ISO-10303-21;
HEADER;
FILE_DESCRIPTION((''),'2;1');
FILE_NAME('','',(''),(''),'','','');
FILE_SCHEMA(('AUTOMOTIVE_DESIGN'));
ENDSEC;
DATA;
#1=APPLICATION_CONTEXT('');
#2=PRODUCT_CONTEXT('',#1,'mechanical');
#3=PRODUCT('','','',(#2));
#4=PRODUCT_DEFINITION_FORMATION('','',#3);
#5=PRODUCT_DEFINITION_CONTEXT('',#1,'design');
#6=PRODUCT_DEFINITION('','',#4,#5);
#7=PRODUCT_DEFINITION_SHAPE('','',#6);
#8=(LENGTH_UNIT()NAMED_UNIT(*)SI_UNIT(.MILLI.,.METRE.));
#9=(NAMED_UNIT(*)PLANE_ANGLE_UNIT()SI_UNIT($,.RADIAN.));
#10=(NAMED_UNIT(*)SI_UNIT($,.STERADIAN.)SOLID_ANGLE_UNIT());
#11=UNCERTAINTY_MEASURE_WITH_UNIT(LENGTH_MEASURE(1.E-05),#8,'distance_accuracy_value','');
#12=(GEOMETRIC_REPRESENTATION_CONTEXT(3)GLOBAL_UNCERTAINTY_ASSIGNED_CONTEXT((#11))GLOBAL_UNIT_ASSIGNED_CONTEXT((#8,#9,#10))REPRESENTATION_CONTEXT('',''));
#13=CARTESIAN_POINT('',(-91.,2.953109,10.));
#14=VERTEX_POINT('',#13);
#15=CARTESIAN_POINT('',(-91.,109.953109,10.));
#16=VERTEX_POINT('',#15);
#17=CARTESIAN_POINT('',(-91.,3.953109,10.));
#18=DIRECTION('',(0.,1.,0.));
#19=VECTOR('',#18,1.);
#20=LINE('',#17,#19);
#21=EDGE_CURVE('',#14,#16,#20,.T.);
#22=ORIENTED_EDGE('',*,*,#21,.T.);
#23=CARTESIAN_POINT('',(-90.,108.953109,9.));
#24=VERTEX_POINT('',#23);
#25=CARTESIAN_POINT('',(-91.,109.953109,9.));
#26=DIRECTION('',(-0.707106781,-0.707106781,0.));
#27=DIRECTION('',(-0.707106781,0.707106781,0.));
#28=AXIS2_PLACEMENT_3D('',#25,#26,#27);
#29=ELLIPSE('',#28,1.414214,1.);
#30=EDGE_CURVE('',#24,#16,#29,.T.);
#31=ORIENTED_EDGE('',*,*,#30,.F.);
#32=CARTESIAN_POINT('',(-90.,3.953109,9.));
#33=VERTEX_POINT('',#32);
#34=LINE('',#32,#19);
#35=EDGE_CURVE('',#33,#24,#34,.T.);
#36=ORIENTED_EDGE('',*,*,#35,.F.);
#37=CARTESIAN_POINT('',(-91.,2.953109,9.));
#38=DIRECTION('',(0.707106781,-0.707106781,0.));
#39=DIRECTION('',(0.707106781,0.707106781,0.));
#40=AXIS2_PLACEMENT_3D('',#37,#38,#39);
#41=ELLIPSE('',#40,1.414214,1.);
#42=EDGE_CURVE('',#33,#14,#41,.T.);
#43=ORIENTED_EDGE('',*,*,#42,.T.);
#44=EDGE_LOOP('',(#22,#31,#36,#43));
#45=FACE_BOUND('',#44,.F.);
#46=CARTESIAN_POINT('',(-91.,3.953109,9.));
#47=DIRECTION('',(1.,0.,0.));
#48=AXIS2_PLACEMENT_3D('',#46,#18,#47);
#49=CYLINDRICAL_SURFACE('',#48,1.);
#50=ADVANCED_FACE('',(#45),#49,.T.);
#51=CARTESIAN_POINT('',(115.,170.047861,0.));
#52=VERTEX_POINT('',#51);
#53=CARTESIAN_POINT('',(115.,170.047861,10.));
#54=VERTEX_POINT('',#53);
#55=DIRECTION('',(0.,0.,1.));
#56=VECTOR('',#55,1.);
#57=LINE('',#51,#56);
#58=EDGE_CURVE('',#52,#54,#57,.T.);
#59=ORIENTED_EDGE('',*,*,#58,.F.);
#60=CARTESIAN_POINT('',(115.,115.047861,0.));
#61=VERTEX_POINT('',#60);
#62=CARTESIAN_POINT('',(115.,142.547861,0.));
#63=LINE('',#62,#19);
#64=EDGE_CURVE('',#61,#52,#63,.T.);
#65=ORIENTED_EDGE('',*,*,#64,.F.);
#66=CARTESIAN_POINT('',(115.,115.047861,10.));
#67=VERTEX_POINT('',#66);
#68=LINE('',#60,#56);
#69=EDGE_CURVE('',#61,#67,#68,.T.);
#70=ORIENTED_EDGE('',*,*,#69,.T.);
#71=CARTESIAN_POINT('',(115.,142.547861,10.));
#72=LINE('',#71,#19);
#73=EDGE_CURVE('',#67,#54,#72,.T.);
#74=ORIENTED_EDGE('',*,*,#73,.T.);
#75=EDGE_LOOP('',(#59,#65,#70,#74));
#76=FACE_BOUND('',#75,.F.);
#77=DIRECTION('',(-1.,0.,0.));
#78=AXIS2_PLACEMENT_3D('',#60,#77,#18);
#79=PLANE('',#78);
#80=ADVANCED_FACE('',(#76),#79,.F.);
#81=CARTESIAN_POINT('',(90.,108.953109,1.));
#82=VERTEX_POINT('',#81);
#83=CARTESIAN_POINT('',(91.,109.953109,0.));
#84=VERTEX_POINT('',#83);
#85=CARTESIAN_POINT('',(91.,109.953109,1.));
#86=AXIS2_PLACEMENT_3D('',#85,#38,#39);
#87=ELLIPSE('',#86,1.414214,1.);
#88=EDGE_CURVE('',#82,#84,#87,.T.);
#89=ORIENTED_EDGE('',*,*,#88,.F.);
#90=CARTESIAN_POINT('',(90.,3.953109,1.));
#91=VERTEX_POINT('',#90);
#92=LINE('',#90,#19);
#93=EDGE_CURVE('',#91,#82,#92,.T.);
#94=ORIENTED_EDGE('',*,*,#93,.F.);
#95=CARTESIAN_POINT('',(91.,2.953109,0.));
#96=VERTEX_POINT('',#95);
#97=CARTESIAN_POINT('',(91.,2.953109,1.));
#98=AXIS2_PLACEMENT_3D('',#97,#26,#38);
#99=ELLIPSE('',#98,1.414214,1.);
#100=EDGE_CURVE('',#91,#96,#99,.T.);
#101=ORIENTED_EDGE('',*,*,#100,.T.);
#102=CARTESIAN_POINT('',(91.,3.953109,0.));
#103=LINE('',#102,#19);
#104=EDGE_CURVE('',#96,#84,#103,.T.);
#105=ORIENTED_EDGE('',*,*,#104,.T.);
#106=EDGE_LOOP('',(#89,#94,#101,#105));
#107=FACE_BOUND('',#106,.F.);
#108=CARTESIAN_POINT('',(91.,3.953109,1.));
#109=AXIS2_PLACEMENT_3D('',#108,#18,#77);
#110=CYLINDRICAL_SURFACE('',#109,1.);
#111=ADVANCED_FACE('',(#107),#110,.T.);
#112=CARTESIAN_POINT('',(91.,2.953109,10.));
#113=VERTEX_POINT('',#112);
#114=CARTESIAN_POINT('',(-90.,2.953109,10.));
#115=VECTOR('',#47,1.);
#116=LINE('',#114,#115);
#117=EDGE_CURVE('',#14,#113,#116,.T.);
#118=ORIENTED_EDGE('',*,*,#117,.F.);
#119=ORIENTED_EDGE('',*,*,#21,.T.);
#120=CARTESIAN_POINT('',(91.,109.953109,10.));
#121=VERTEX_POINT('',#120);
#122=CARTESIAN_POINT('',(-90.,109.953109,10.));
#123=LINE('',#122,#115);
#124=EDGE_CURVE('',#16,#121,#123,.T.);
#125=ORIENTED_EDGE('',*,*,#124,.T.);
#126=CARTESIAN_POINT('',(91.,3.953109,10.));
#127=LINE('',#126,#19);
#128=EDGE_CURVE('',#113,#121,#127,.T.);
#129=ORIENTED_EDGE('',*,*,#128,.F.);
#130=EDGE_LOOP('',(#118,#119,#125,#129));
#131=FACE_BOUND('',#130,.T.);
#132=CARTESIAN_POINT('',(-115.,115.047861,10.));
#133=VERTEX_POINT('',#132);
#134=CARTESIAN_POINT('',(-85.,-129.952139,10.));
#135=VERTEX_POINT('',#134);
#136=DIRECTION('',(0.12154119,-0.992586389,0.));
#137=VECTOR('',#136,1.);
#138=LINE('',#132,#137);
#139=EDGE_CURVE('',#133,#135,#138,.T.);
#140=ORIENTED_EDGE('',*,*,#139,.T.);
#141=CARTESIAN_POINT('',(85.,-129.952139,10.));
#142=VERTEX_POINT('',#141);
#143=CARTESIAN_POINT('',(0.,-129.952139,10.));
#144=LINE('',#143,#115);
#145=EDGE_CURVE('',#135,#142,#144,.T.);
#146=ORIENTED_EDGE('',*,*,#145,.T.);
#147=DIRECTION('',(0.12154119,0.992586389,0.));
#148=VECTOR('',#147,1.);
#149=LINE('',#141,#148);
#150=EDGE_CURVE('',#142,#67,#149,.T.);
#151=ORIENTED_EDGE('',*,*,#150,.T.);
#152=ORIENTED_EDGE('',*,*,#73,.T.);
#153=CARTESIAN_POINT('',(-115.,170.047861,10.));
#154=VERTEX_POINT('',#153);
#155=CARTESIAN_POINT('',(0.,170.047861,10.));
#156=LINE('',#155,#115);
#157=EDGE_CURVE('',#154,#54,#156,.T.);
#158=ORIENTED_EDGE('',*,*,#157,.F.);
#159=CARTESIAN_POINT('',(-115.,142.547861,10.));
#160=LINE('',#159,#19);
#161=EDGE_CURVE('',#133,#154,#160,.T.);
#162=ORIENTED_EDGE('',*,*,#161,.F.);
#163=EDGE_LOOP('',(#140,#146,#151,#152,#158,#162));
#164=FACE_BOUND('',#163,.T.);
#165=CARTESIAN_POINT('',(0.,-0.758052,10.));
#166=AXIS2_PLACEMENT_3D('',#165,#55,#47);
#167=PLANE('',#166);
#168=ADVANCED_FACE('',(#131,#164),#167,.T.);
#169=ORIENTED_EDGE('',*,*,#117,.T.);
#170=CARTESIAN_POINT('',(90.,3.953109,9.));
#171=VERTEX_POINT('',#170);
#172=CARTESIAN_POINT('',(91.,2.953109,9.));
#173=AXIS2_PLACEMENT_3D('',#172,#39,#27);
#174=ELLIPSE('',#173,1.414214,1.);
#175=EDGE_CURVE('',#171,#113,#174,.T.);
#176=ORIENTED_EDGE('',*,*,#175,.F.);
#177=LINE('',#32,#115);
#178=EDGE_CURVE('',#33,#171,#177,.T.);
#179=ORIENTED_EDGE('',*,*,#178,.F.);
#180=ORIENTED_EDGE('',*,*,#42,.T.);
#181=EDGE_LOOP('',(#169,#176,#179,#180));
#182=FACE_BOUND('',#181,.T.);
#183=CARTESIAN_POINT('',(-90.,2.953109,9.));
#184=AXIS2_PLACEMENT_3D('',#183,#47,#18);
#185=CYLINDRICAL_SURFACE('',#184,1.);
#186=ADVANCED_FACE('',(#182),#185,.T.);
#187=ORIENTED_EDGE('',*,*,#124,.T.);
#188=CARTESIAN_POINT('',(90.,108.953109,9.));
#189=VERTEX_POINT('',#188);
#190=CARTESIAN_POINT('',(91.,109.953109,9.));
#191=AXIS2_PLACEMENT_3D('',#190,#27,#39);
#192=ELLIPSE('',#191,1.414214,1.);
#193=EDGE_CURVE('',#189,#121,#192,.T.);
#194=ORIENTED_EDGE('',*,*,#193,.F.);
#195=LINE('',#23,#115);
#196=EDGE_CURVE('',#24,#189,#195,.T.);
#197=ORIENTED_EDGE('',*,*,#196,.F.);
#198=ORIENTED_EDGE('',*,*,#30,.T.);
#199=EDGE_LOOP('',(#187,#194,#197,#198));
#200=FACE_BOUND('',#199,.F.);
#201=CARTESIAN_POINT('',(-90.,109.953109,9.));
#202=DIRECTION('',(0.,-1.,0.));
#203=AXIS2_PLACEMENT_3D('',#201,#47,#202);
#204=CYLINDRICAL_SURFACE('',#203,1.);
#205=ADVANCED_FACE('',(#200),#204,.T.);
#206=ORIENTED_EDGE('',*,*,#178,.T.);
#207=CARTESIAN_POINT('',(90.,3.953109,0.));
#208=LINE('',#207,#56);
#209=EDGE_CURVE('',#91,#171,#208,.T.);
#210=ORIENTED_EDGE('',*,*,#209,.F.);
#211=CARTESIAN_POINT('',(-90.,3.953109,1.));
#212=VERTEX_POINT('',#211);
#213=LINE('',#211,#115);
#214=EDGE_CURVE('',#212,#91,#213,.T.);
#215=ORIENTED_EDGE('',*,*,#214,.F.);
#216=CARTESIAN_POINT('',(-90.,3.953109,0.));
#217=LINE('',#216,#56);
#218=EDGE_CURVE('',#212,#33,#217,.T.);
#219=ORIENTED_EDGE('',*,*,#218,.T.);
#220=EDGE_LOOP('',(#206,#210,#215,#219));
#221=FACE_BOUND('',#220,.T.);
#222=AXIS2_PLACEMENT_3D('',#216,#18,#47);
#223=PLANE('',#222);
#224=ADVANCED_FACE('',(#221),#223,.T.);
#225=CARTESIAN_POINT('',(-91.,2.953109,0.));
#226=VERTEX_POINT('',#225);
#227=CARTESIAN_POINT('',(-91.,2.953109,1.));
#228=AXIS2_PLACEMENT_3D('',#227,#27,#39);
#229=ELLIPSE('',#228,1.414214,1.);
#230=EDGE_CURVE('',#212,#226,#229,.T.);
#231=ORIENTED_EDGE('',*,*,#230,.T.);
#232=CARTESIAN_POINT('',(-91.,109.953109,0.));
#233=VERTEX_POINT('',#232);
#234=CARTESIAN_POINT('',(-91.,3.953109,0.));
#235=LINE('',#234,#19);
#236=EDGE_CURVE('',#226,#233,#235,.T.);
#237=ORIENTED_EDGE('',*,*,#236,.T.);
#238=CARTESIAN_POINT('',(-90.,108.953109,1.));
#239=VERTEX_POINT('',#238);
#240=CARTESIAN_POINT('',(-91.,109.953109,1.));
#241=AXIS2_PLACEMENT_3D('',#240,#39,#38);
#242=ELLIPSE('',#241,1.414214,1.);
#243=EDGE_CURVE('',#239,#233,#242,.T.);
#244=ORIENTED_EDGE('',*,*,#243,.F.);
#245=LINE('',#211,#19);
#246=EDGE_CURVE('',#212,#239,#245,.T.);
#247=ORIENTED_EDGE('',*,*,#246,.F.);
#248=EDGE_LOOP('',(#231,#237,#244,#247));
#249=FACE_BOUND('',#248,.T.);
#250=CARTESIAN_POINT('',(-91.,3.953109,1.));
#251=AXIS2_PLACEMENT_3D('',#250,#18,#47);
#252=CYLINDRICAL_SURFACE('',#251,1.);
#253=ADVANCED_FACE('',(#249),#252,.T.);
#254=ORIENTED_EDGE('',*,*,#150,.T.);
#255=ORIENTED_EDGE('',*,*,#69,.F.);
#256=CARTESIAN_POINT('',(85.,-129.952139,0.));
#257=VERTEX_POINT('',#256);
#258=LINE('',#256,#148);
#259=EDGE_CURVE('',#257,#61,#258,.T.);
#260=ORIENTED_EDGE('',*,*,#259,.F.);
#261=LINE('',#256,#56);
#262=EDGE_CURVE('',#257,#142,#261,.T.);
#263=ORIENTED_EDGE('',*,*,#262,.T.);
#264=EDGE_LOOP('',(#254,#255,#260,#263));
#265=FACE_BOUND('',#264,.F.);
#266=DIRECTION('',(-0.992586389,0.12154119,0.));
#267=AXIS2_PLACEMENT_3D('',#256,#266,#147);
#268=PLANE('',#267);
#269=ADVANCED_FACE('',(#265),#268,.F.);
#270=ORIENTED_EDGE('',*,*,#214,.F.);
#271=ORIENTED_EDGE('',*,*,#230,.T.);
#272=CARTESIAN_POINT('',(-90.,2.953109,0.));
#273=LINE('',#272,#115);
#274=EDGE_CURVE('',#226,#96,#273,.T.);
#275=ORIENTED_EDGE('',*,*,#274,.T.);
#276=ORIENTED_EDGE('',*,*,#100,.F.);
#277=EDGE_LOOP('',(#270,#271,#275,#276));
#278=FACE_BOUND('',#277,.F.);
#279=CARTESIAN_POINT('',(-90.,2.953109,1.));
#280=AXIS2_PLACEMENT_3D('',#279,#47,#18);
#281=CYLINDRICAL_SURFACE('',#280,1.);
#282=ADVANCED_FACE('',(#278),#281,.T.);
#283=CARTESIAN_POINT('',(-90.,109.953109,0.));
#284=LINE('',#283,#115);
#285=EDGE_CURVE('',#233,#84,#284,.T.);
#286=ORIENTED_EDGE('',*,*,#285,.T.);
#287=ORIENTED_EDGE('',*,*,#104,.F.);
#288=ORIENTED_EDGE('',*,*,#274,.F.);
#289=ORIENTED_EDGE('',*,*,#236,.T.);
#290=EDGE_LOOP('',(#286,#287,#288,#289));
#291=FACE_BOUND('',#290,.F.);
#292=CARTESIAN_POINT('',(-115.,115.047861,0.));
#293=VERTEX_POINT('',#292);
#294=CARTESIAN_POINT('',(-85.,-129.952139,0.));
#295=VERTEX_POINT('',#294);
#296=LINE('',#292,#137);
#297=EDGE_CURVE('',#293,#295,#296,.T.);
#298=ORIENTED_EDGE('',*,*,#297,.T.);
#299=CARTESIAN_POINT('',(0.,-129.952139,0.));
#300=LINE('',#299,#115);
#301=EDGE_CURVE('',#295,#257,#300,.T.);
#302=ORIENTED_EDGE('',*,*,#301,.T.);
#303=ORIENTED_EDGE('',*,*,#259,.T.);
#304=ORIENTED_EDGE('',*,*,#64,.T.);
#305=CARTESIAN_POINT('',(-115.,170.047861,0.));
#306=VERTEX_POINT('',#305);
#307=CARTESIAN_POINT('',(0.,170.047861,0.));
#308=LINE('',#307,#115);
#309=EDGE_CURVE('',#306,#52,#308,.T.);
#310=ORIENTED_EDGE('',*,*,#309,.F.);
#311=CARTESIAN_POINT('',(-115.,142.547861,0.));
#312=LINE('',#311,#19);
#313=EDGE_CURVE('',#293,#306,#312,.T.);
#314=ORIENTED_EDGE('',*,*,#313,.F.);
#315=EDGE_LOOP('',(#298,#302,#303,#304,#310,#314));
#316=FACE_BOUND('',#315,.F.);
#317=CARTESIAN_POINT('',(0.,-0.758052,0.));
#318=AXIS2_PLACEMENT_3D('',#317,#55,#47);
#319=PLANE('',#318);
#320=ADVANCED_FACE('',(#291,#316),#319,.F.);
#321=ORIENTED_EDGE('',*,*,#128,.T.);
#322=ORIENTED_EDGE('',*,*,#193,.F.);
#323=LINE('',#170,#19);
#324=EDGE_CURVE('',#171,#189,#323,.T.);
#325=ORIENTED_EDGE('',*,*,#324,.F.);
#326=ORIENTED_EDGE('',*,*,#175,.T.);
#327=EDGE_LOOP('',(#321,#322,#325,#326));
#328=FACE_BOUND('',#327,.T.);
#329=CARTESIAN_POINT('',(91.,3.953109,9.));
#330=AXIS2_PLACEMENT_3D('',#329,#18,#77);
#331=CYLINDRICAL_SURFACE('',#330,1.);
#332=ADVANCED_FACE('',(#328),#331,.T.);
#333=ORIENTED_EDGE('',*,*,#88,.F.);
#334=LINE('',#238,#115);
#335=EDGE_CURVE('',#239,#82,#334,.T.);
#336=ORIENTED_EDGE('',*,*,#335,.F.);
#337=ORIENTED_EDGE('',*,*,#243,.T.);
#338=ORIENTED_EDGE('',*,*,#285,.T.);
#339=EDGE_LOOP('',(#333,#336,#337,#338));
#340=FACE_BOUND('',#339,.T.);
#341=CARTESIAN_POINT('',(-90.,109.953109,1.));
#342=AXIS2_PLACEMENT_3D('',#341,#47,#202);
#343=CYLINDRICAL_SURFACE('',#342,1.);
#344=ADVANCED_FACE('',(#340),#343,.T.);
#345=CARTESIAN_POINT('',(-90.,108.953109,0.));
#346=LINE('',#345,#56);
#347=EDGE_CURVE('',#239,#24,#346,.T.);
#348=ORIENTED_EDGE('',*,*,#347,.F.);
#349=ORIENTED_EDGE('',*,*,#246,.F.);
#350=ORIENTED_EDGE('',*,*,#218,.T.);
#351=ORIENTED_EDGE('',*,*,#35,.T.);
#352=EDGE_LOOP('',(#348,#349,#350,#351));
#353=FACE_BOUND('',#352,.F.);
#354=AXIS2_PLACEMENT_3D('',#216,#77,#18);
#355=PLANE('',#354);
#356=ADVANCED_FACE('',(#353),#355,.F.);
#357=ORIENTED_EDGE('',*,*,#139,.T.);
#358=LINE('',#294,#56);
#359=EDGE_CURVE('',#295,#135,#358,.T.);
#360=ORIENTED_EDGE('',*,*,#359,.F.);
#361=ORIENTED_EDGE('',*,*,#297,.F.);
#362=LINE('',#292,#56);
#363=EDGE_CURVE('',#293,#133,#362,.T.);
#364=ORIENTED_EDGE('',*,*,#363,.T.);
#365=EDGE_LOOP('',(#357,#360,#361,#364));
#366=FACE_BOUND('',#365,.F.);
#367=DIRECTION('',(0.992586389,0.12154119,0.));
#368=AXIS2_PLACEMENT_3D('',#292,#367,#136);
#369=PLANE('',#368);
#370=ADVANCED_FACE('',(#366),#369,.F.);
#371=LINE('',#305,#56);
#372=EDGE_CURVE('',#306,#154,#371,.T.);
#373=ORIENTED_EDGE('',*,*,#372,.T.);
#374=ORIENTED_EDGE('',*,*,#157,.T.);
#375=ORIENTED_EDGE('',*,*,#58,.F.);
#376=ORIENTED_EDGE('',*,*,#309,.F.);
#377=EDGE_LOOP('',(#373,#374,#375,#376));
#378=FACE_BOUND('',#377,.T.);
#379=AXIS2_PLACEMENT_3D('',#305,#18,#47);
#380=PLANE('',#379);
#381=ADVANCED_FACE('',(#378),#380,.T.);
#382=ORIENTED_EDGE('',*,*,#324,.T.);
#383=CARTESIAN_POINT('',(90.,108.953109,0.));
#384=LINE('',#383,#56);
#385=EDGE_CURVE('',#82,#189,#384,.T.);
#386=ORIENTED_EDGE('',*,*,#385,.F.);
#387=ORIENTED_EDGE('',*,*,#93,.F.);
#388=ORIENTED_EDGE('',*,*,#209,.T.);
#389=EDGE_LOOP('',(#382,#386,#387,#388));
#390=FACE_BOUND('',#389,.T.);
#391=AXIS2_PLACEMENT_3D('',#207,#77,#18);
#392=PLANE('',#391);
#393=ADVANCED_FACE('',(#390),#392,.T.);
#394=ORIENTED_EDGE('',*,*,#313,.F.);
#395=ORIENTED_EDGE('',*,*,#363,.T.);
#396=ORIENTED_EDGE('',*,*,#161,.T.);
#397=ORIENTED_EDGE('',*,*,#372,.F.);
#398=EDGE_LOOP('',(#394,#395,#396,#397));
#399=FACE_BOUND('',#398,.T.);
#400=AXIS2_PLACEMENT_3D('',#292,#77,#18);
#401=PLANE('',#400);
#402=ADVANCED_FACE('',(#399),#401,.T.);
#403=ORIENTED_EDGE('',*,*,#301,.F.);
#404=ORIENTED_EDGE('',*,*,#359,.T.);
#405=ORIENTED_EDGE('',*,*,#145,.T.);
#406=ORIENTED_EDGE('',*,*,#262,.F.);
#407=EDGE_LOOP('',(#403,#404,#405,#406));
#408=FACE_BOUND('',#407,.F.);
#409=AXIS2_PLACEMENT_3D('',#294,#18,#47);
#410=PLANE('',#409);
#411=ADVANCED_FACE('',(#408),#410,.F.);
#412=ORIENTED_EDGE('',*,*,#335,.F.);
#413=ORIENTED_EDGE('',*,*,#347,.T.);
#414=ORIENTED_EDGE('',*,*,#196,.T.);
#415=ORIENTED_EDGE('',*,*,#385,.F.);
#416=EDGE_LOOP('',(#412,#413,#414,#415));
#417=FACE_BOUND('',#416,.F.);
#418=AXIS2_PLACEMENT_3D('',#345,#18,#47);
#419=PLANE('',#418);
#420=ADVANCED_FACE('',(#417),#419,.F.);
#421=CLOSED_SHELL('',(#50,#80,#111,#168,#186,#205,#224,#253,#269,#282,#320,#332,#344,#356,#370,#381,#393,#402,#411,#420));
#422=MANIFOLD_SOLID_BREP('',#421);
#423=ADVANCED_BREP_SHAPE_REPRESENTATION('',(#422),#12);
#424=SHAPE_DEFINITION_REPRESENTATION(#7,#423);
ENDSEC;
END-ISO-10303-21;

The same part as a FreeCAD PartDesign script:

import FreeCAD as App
import Part
import Sketcher


def edges_at(feature, points):
    """Names of the edges that pass closest to the given points."""
    edges = feature.Shape.Edges
    near = lambda p: min(range(len(edges)), key=lambda i: edges[i].distToShape(Part.Vertex(*p))[0])
    return sorted({f"Edge{near(p) + 1}" for p in points})

doc = App.newDocument("Part")
body = doc.addObject("PartDesign::Body", "Body")

sketch1 = body.newObject("Sketcher::SketchObject", "Sketch")
sketch1.AttachmentSupport = (doc.getObject("XY_Plane"), [""])
sketch1.MapMode = "FlatFace"
sketch1.addGeometry([
    Part.LineSegment(App.Vector(85, -130, 0), App.Vector(115, 115, 0)),
    Part.LineSegment(App.Vector(115, 115, 0), App.Vector(115, 170, 0)),
    Part.LineSegment(App.Vector(115, 170, 0), App.Vector(-115, 170, 0)),
    Part.LineSegment(App.Vector(-115, 170, 0), App.Vector(-115, 115, 0)),
    Part.LineSegment(App.Vector(-115, 115, 0), App.Vector(-85, -130, 0)),
    Part.LineSegment(App.Vector(-85, -130, 0), App.Vector(85, -130, 0)),
    Part.LineSegment(App.Vector(90, 4, 0), App.Vector(-90, 4, 0)),
    Part.LineSegment(App.Vector(-90, 4, 0), App.Vector(-90, 109, 0)),
    Part.LineSegment(App.Vector(-90, 109, 0), App.Vector(90, 109, 0)),
    Part.LineSegment(App.Vector(90, 109, 0), App.Vector(90, 4, 0)),
], False)
sketch1.addConstraint([
    Sketcher.Constraint("Coincident", 0, 2, 1, 1),
    Sketcher.Constraint("Coincident", 1, 2, 2, 1),
    Sketcher.Constraint("Coincident", 2, 2, 3, 1),
    Sketcher.Constraint("Coincident", 3, 2, 4, 1),
    Sketcher.Constraint("Coincident", 4, 2, 5, 1),
    Sketcher.Constraint("Coincident", 5, 2, 0, 1),
    Sketcher.Constraint("Coincident", 6, 2, 7, 1),
    Sketcher.Constraint("Coincident", 7, 2, 8, 1),
    Sketcher.Constraint("Coincident", 8, 2, 9, 1),
    Sketcher.Constraint("Coincident", 9, 2, 6, 1),
    Sketcher.Constraint("Vertical", 1),
    Sketcher.Constraint("Horizontal", 2),
    Sketcher.Constraint("Vertical", 3),
    Sketcher.Constraint("Horizontal", 5),
    Sketcher.Constraint("Horizontal", 6),
    Sketcher.Constraint("Vertical", 7),
    Sketcher.Constraint("Horizontal", 8),
    Sketcher.Constraint("Vertical", 9),
    Sketcher.Constraint("Symmetric", 0, 2, 3, 2, -2),
    Sketcher.Constraint("Equal", 0, 4),
    Sketcher.Constraint("DistanceX", 2, 2, 2, 1, 230.0),
    Sketcher.Constraint("DistanceX", 5, 1, 5, 2, 170.0),
    Sketcher.Constraint("DistanceX", 6, 2, 6, 1, 180.0),
    Sketcher.Constraint("DistanceY", 1, 1, 1, 2, 55.0),
    Sketcher.Constraint("DistanceY", 7, 1, 7, 2, 105.0),
    Sketcher.Constraint("DistanceX", 6, 2, -1, 1, 90.0),
    Sketcher.Constraint("DistanceY", 4, 2, 3, 2, 245.0),
    Sketcher.Constraint("DistanceY", -1, 1, 0, 2, 115.047861),
    Sketcher.Constraint("DistanceY", -1, 1, 6, 2, 3.953109),
])
pad1 = body.newObject("PartDesign::Pad", "Pad")
pad1.Profile = sketch1
pad1.Length = 10
doc.recompute()

fillet = body.newObject("PartDesign::Fillet", "Fillet")
fillet.Base = (pad1, edges_at(pad1, [
    (0, 108.953, 0),
    (90, 56.453, 10),
    (0, 3.953, 10),
    (-90, 56.453, 10),
    (0, 3.953, 0),
    (-90, 56.453, 0),
    (0, 108.953, 10),
    (90, 56.453, 0),
]))
fillet.Radius = 1

doc.recompute()
